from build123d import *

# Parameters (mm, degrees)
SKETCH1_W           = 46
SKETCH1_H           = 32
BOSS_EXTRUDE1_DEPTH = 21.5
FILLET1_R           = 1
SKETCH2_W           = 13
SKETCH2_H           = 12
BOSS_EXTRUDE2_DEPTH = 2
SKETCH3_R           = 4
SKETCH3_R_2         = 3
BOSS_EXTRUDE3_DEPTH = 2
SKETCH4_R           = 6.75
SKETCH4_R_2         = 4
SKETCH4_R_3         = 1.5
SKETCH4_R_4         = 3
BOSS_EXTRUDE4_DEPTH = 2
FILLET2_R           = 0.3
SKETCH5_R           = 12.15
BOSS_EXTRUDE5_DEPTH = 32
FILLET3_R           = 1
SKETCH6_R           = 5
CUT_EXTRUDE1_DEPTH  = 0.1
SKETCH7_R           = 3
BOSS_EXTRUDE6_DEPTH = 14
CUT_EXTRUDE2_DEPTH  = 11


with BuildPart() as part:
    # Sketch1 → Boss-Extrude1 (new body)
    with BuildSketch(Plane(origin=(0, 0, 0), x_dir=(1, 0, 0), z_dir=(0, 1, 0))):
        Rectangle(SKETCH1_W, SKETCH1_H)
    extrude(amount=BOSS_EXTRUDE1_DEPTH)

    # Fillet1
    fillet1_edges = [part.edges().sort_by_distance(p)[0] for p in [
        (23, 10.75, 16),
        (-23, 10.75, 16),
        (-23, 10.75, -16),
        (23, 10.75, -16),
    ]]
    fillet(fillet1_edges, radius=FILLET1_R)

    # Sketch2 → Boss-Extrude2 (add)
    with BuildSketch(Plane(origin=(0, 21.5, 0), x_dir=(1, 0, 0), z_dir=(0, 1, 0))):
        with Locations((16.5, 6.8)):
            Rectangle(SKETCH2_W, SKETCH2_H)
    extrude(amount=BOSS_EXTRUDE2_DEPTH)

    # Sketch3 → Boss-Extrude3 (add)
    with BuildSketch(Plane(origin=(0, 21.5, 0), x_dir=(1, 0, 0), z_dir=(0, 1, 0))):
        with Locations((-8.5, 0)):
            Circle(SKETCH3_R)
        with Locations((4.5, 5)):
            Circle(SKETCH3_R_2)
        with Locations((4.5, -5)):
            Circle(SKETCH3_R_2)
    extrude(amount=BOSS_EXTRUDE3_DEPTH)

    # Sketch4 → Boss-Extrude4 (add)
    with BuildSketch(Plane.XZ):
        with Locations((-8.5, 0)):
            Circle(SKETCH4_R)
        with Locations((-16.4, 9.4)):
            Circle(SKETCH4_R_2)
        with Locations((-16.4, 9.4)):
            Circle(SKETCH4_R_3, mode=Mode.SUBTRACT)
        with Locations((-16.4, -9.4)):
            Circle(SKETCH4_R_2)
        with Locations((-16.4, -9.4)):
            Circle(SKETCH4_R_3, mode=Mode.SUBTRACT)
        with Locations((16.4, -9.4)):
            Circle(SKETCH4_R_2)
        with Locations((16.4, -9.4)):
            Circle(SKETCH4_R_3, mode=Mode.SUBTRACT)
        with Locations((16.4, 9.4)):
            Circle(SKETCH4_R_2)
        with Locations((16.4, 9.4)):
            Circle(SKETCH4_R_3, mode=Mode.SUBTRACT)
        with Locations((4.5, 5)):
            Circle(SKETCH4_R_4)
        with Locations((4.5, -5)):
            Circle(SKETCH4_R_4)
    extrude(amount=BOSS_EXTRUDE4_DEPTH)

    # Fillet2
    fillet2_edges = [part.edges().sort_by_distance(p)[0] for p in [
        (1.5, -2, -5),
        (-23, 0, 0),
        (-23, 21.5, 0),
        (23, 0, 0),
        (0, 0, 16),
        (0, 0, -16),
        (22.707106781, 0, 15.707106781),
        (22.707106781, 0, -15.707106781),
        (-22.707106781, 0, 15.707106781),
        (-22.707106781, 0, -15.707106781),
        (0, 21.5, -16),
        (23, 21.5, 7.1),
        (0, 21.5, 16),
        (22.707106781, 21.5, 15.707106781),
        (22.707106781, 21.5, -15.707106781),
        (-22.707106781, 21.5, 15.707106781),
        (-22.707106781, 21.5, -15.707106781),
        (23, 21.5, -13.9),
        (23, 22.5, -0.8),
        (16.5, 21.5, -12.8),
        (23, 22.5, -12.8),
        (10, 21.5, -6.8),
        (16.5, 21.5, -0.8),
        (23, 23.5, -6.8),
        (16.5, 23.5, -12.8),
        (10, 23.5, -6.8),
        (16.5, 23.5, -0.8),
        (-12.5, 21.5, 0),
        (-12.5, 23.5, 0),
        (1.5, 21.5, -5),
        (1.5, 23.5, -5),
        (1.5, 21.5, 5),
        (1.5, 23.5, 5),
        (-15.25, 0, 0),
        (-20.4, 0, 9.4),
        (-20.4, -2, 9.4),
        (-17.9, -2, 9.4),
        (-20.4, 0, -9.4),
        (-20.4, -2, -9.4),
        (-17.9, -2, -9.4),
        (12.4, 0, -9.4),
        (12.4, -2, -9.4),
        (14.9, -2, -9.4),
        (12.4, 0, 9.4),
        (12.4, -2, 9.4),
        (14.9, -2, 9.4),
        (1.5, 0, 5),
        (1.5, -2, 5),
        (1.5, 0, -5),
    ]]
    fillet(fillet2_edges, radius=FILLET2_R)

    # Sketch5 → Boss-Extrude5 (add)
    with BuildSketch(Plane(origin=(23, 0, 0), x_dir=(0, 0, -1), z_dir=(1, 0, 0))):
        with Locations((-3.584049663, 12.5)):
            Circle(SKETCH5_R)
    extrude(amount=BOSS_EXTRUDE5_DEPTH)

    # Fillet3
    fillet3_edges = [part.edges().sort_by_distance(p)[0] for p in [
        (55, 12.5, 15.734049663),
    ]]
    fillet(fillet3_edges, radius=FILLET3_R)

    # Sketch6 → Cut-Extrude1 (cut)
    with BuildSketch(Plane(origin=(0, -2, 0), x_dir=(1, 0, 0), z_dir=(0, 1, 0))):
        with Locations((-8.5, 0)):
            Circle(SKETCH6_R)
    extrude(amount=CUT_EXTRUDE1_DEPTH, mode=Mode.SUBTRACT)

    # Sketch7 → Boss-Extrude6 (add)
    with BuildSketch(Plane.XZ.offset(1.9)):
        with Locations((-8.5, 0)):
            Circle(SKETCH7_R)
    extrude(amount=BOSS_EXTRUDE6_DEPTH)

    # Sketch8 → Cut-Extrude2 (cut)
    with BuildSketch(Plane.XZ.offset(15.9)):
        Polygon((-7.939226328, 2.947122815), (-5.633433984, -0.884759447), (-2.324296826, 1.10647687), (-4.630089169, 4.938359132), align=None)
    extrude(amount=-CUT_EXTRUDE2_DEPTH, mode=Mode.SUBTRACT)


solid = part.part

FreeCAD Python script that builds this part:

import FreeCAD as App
import Part
import Sketcher
from FreeCAD import Vector
Q = App.Units.Quantity


def edges_at(feature, points):
    """Names of the edges that pass closest to the given points."""
    edges = feature.Shape.Edges
    near = lambda p: min(range(len(edges)), key=lambda i: edges[i].distToShape(Part.Vertex(*p))[0])
    return sorted({f"Edge{near(p) + 1}" for p in points})

doc = App.newDocument("Part")
body = doc.addObject("PartDesign::Body", "Body")

# Sketch on XZ plane
sketch1 = body.newObject("Sketcher::SketchObject", "Sketch")
sketch1.AttachmentSupport = (doc.getObject("XZ_Plane"), [""])
sketch1.MapMode = "FlatFace"
sketch1.addGeometry(Part.LineSegment(Vector(-23, -16, 0), Vector(-23, 16, 0)), False)
sketch1.addGeometry(Part.LineSegment(Vector(-23, 16, 0), Vector(23, 16, 0)), False)
sketch1.addGeometry(Part.LineSegment(Vector(23, 16, 0), Vector(23, -16, 0)), False)
sketch1.addGeometry(Part.LineSegment(Vector(23, -16, 0), Vector(-23, -16, 0)), False)
sketch1.addConstraint(Sketcher.Constraint("Coincident", 0, 2, 1, 1))
sketch1.addConstraint(Sketcher.Constraint("Coincident", 1, 2, 2, 1))
sketch1.addConstraint(Sketcher.Constraint("Coincident", 2, 2, 3, 1))
sketch1.addConstraint(Sketcher.Constraint("Coincident", 3, 2, 0, 1))
sketch1.addConstraint(Sketcher.Constraint("Vertical", 0))
sketch1.addConstraint(Sketcher.Constraint("Horizontal", 1))
sketch1.addConstraint(Sketcher.Constraint("Vertical", 2))
sketch1.addConstraint(Sketcher.Constraint("Horizontal", 3))
sketch1.addConstraint(Sketcher.Constraint("Symmetric", 0, 2, 2, 2, -1, 1))
sketch1.addConstraint(Sketcher.Constraint("DistanceX", 1, 1, 1, 2, Q("46 mm")))
sketch1.addConstraint(Sketcher.Constraint("DistanceY", 0, 1, 0, 2, Q("32 mm")))
pad1 = body.newObject("PartDesign::Pad", "Pad")
pad1.Profile = sketch1
pad1.Length = 21.5
pad1.Reversed = True
doc.recompute()

fillet = body.newObject("PartDesign::Fillet", "Fillet")
fillet.Base = (pad1, edges_at(pad1, [
    (23, 10.75, 16),
    (-23, 10.75, 16),
    (-23, 10.75, -16),
    (23, 10.75, -16),
]))
fillet.Radius = 1

# Sketch on XZ plane
sketch2 = body.newObject("Sketcher::SketchObject", "Sketch001")
sketch2.AttachmentSupport = (doc.getObject("XZ_Plane"), [""])
sketch2.MapMode = "FlatFace"
sketch2.AttachmentOffset = App.Placement(Vector(0, 0, -21.5), App.Rotation())
sketch2.addGeometry(Part.LineSegment(Vector(10, -13, 0), Vector(10, -1, 0)), False)
sketch2.addGeometry(Part.LineSegment(Vector(10, -1, 0), Vector(23, -1, 0)), False)
sketch2.addGeometry(Part.LineSegment(Vector(23, -1, 0), Vector(23, -13, 0)), False)
sketch2.addGeometry(Part.LineSegment(Vector(23, -13, 0), Vector(10, -13, 0)), False)
sketch2.addConstraint(Sketcher.Constraint("Coincident", 0, 2, 1, 1))
sketch2.addConstraint(Sketcher.Constraint("Coincident", 1, 2, 2, 1))
sketch2.addConstraint(Sketcher.Constraint("Coincident", 2, 2, 3, 1))
sketch2.addConstraint(Sketcher.Constraint("Coincident", 3, 2, 0, 1))
sketch2.addConstraint(Sketcher.Constraint("Vertical", 0))
sketch2.addConstraint(Sketcher.Constraint("Horizontal", 1))
sketch2.addConstraint(Sketcher.Constraint("Vertical", 2))
sketch2.addConstraint(Sketcher.Constraint("Horizontal", 3))
sketch2.addConstraint(Sketcher.Constraint("DistanceX", 1, 1, 1, 2, Q("13 mm")))
sketch2.addConstraint(Sketcher.Constraint("DistanceY", 0, 1, 0, 2, Q("12 mm")))
sketch2.addConstraint(Sketcher.Constraint("DistanceX", -1, 1, 0, 2, Q("10 mm")))
sketch2.addConstraint(Sketcher.Constraint("DistanceY", 0, 2, -1, 1, Q("0.8 mm")))
pad2 = body.newObject("PartDesign::Pad", "Pad001")
pad2.Profile = sketch2
pad2.Length = 2
pad2.Reversed = True

# Sketch on XZ plane
sketch3 = body.newObject("Sketcher::SketchObject", "Sketch002")
sketch3.AttachmentSupport = (doc.getObject("XZ_Plane"), [""])
sketch3.MapMode = "FlatFace"
sketch3.AttachmentOffset = App.Placement(Vector(0, 0, -21.5), App.Rotation())
sketch3.addGeometry(Part.Circle(Vector(-8.5, 0, 0), Vector(0, 0, 1), 4), False)
sketch3.addGeometry(Part.Circle(Vector(4.5, -5, 0), Vector(0, 0, 1), 3), False)
sketch3.addGeometry(Part.Circle(Vector(4.5, 5, 0), Vector(0, 0, 1), 3), False)
sketch3.addConstraint(Sketcher.Constraint("Equal", 1, 2))
sketch3.addConstraint(Sketcher.Constraint("Symmetric", 1, 3, 2, 3, -1))
sketch3.addConstraint(Sketcher.Constraint("PointOnObject", 0, 3, -1))
sketch3.addConstraint(Sketcher.Constraint("Diameter", 0, Q("8 mm")))
sketch3.addConstraint(Sketcher.Constraint("Diameter", 1, Q("6 mm")))
sketch3.addConstraint(Sketcher.Constraint("DistanceY", 1, 3, -1, 1, Q("5 mm")))
sketch3.addConstraint(Sketcher.Constraint("DistanceX", 0, 3, 1, 3, Q("13 mm")))
sketch3.addConstraint(Sketcher.Constraint("DistanceX", 0, 3, -1, 1, Q("8.5 mm")))
pad3 = body.newObject("PartDesign::Pad", "Pad002")
pad3.Profile = sketch3
pad3.Length = 2
pad3.Reversed = True

# Sketch on XZ plane
sketch4 = body.newObject("Sketcher::SketchObject", "Sketch003")
sketch4.AttachmentSupport = (doc.getObject("XZ_Plane"), [""])
sketch4.MapMode = "FlatFace"
sketch4.addGeometry(Part.Circle(Vector(-8.5, 0, 0), Vector(0, 0, 1), 6.8), False)
sketch4.addGeometry(Part.Circle(Vector(-16.4, 9.4, 0), Vector(0, 0, 1), 4), False)
sketch4.addGeometry(Part.Circle(Vector(-16.4, 9.4, 0), Vector(0, 0, 1), 1.5), False)
sketch4.addGeometry(Part.Circle(Vector(-16.4, -9.4, 0), Vector(0, 0, 1), 4), False)
sketch4.addGeometry(Part.Circle(Vector(-16.4, -9.4, 0), Vector(0, 0, 1), 1.5), False)
sketch4.addGeometry(Part.Circle(Vector(16.4, -9.4, 0), Vector(0, 0, 1), 4), False)
sketch4.addGeometry(Part.Circle(Vector(16.4, -9.4, 0), Vector(0, 0, 1), 1.5), False)
sketch4.addGeometry(Part.Circle(Vector(16.4, 9.4, 0), Vector(0, 0, 1), 4), False)
sketch4.addGeometry(Part.Circle(Vector(16.4, 9.4, 0), Vector(0, 0, 1), 1.5), False)
sketch4.addGeometry(Part.Circle(Vector(4.5, 5, 0), Vector(0, 0, 1), 3), False)
sketch4.addGeometry(Part.Circle(Vector(4.5, -5, 0), Vector(0, 0, 1), 3), False)
sketch4.addConstraint(Sketcher.Constraint("Coincident", 2, 3, 1, 3))
sketch4.addConstraint(Sketcher.Constraint("Coincident", 4, 3, 3, 3))
sketch4.addConstraint(Sketcher.Constraint("Coincident", 6, 3, 5, 3))
sketch4.addConstraint(Sketcher.Constraint("Coincident", 8, 3, 7, 3))
sketch4.addConstraint(Sketcher.Constraint("Equal", 1, 3))
sketch4.addConstraint(Sketcher.Constraint("Equal", 2, 4))
sketch4.addConstraint(Sketcher.Constraint("Equal", 3, 5))
sketch4.addConstraint(Sketcher.Constraint("Equal", 4, 6))
sketch4.addConstraint(Sketcher.Constraint("Equal", 5, 7))
sketch4.addConstraint(Sketcher.Constraint("Equal", 6, 8))
sketch4.addConstraint(Sketcher.Constraint("Equal", 9, 10))
sketch4.addConstraint(Sketcher.Constraint("Symmetric", 1, 3, 5, 3, -1, 1))
sketch4.addConstraint(Sketcher.Constraint("Symmetric", 3, 3, 7, 3, -1, 1))
sketch4.addConstraint(Sketcher.Constraint("Symmetric", 3, 3, 5, 3, -2))
sketch4.addConstraint(Sketcher.Constraint("Symmetric", 9, 3, 10, 3, -1))
sketch4.addConstraint(Sketcher.Constraint("PointOnObject", 0, 3, -1))
sketch4.addConstraint(Sketcher.Constraint("Diameter", 1, Q("8 mm")))
sketch4.addConstraint(Sketcher.Constraint("Diameter", 2, Q("3 mm")))
sketch4.addConstraint(Sketcher.Constraint("Diameter", 9, Q("6 mm")))
sketch4.addConstraint(Sketcher.Constraint("Diameter", 0, Q("13.5 mm")))
sketch4.addConstraint(Sketcher.Constraint("DistanceY", -1, 1, 9, 3, Q("5 mm")))
sketch4.addConstraint(Sketcher.Constraint("DistanceX", 0, 3, 9, 3, Q("13 mm")))
sketch4.addConstraint(Sketcher.Constraint("DistanceX", 0, 3, -1, 1, Q("8.5 mm")))
sketch4.addConstraint(Sketcher.Constraint("DistanceX", 1, 3, -1, 1, Q("16.4 mm")))
sketch4.addConstraint(Sketcher.Constraint("DistanceY", -1, 1, 1, 3, Q("9.4 mm")))
pad4 = body.newObject("PartDesign::Pad", "Pad003")
pad4.Profile = sketch4
pad4.Length = 2
doc.recompute()

fillet2 = body.newObject("PartDesign::Fillet", "Fillet001")
fillet2.Base = (pad4, edges_at(pad4, [
    (1.5, -2, -5),
    (-23, 0, 0),
    (-23, 21.5, 0),
    (23, 0, 0),
    (0, 0, 16),
    (0, 0, -16),
    (22.707, 0, 15.707),
    (22.707, 0, -15.707),
    (-22.707, 0, 15.707),
    (-22.707, 0, -15.707),
    (0, 21.5, -16),
    (23, 21.5, 7.1),
    (0, 21.5, 16),
    (22.707, 21.5, 15.707),
    (22.707, 21.5, -15.707),
    (-22.707, 21.5, 15.707),
    (-22.707, 21.5, -15.707),
    (23, 21.5, -13.9),
    (23, 22.5, -0.8),
    (16.5, 21.5, -12.8),
    (23, 22.5, -12.8),
    (10, 21.5, -6.8),
    (16.5, 21.5, -0.8),
    (23, 23.5, -6.8),
    (16.5, 23.5, -12.8),
    (10, 23.5, -6.8),
    (16.5, 23.5, -0.8),
    (-12.5, 21.5, 0),
    (-12.5, 23.5, 0),
    (1.5, 21.5, -5),
    (1.5, 23.5, -5),
    (1.5, 21.5, 5),
    (1.5, 23.5, 5),
    (-15.25, 0, 0),
    (-20.4, 0, 9.4),
    (-20.4, -2, 9.4),
    (-17.9, -2, 9.4),
    (-20.4, 0, -9.4),
    (-20.4, -2, -9.4),
    (-17.9, -2, -9.4),
    (12.4, 0, -9.4),
    (12.4, -2, -9.4),
    (14.9, -2, -9.4),
    (12.4, 0, 9.4),
    (12.4, -2, 9.4),
    (14.9, -2, 9.4),
    (1.5, 0, 5),
    (1.5, -2, 5),
    (1.5, 0, -5),
]))
fillet2.Radius = 0.3

# Sketch on YZ plane
sketch5 = body.newObject("Sketcher::SketchObject", "Sketch004")
sketch5.AttachmentSupport = (doc.getObject("YZ_Plane"), [""])
sketch5.MapMode = "FlatFace"
sketch5.AttachmentOffset = App.Placement(Vector(0, 0, 23), App.Rotation())
sketch5.addGeometry(Part.Circle(Vector(12, 4, 0), Vector(0, 0, 1), 12), False)
sketch5.addConstraint(Sketcher.Constraint("Diameter", 0, Q("24.3 mm")))
sketch5.addConstraint(Sketcher.Constraint("DistanceX", -1, 1, 0, 3, Q("12.5 mm")))
sketch5.addConstraint(Sketcher.Constraint("DistanceY", -1, 1, 0, 3, Q("3.58405 mm")))
pad5 = body.newObject("PartDesign::Pad", "Pad004")
pad5.Profile = sketch5
pad5.Length = 32
doc.recompute()

fillet3 = body.newObject("PartDesign::Fillet", "Fillet002")
fillet3.Base = (pad5, edges_at(pad5, [(55, 12.5, 15.734)]))
fillet3.Radius = 1

# Sketch on XZ plane
sketch6 = body.newObject("Sketcher::SketchObject", "Sketch005")
sketch6.AttachmentSupport = (doc.getObject("XZ_Plane"), [""])
sketch6.MapMode = "FlatFace"
sketch6.AttachmentOffset = App.Placement(Vector(0, 0, 2), App.Rotation())
sketch6.addGeometry(Part.Circle(Vector(-8, 0, 0), Vector(0, 0, 1), 5), False)
sketch6.addConstraint(Sketcher.Constraint("PointOnObject", 0, 3, -1))
sketch6.addConstraint(Sketcher.Constraint("Diameter", 0, Q("10 mm")))
sketch6.addConstraint(Sketcher.Constraint("DistanceX", 0, 3, -1, 1, Q("8.5 mm")))
pocket1 = body.newObject("PartDesign::Pocket", "Pocket")
pocket1.Profile = sketch6
pocket1.Length = 0.1

# Sketch on XZ plane
sketch7 = body.newObject("Sketcher::SketchObject", "Sketch006")
sketch7.AttachmentSupport = (doc.getObject("XZ_Plane"), [""])
sketch7.MapMode = "FlatFace"
sketch7.AttachmentOffset = App.Placement(Vector(0, 0, 1.9), App.Rotation())
sketch7.addGeometry(Part.Circle(Vector(-8.5, 0, 0), Vector(0, 0, 1), 3), False)
sketch7.addConstraint(Sketcher.Constraint("PointOnObject", 0, 3, -1))
sketch7.addConstraint(Sketcher.Constraint("Diameter", 0, Q("6 mm")))
sketch7.addConstraint(Sketcher.Constraint("DistanceX", 0, 3, -1, 1, Q("8.5 mm")))
pad6 = body.newObject("PartDesign::Pad", "Pad005")
pad6.Profile = sketch7
pad6.Length = 14

# Sketch on XZ plane
sketch8 = body.newObject("Sketcher::SketchObject", "Sketch007")
sketch8.AttachmentSupport = (doc.getObject("XZ_Plane"), [""])
sketch8.MapMode = "FlatFace"
sketch8.AttachmentOffset = App.Placement(Vector(0, 0, 15.9), App.Rotation())
sketch8.addGeometry(Part.LineSegment(Vector(-7.939226, 2.947123, 0), Vector(-5.633434, -0.884759, 0)), False)
sketch8.addGeometry(Part.LineSegment(Vector(-5.633434, -0.884759, 0), Vector(-2.324297, 1.106477, 0)), False)
sketch8.addGeometry(Part.LineSegment(Vector(-2.324297, 1.106477, 0), Vector(-4.630089, 4.938359, 0)), False)
sketch8.addGeometry(Part.LineSegment(Vector(-4.630089, 4.938359, 0), Vector(-7.939226, 2.947123, 0)), False)
sketch8.addConstraint(Sketcher.Constraint("Coincident", 0, 2, 1, 1))
sketch8.addConstraint(Sketcher.Constraint("Coincident", 1, 2, 2, 1))
sketch8.addConstraint(Sketcher.Constraint("Coincident", 2, 2, 3, 1))
sketch8.addConstraint(Sketcher.Constraint("Coincident", 3, 2, 0, 1))
sketch8.addConstraint(Sketcher.Constraint("DistanceY", 0, 2, -1, 1, Q("0.884759 mm")))
sketch8.addConstraint(Sketcher.Constraint("DistanceX", 2, 2, -1, 1, Q("4.630089 mm")))
sketch8.addConstraint(Sketcher.Constraint("DistanceY", -1, 1, 2, 2, Q("4.938359 mm")))
sketch8.addConstraint(Sketcher.Constraint("DistanceX", 3, 2, 1, 2, Q("5.61493 mm")))
sketch8.addConstraint(Sketcher.Constraint("Distance", 0, Q("4.472136 mm")))
sketch8.addConstraint(Sketcher.Constraint("Distance", 1, Q("3.862047 mm")))
sketch8.addConstraint(Sketcher.Constraint("Distance", 2, Q("4.472136 mm")))
sketch8.addConstraint(Sketcher.Constraint("Distance", 3, Q("3.862047 mm")))
pocket2 = body.newObject("PartDesign::Pocket", "Pocket001")
pocket2.Profile = sketch8
pocket2.Length = 11

doc.recompute()
